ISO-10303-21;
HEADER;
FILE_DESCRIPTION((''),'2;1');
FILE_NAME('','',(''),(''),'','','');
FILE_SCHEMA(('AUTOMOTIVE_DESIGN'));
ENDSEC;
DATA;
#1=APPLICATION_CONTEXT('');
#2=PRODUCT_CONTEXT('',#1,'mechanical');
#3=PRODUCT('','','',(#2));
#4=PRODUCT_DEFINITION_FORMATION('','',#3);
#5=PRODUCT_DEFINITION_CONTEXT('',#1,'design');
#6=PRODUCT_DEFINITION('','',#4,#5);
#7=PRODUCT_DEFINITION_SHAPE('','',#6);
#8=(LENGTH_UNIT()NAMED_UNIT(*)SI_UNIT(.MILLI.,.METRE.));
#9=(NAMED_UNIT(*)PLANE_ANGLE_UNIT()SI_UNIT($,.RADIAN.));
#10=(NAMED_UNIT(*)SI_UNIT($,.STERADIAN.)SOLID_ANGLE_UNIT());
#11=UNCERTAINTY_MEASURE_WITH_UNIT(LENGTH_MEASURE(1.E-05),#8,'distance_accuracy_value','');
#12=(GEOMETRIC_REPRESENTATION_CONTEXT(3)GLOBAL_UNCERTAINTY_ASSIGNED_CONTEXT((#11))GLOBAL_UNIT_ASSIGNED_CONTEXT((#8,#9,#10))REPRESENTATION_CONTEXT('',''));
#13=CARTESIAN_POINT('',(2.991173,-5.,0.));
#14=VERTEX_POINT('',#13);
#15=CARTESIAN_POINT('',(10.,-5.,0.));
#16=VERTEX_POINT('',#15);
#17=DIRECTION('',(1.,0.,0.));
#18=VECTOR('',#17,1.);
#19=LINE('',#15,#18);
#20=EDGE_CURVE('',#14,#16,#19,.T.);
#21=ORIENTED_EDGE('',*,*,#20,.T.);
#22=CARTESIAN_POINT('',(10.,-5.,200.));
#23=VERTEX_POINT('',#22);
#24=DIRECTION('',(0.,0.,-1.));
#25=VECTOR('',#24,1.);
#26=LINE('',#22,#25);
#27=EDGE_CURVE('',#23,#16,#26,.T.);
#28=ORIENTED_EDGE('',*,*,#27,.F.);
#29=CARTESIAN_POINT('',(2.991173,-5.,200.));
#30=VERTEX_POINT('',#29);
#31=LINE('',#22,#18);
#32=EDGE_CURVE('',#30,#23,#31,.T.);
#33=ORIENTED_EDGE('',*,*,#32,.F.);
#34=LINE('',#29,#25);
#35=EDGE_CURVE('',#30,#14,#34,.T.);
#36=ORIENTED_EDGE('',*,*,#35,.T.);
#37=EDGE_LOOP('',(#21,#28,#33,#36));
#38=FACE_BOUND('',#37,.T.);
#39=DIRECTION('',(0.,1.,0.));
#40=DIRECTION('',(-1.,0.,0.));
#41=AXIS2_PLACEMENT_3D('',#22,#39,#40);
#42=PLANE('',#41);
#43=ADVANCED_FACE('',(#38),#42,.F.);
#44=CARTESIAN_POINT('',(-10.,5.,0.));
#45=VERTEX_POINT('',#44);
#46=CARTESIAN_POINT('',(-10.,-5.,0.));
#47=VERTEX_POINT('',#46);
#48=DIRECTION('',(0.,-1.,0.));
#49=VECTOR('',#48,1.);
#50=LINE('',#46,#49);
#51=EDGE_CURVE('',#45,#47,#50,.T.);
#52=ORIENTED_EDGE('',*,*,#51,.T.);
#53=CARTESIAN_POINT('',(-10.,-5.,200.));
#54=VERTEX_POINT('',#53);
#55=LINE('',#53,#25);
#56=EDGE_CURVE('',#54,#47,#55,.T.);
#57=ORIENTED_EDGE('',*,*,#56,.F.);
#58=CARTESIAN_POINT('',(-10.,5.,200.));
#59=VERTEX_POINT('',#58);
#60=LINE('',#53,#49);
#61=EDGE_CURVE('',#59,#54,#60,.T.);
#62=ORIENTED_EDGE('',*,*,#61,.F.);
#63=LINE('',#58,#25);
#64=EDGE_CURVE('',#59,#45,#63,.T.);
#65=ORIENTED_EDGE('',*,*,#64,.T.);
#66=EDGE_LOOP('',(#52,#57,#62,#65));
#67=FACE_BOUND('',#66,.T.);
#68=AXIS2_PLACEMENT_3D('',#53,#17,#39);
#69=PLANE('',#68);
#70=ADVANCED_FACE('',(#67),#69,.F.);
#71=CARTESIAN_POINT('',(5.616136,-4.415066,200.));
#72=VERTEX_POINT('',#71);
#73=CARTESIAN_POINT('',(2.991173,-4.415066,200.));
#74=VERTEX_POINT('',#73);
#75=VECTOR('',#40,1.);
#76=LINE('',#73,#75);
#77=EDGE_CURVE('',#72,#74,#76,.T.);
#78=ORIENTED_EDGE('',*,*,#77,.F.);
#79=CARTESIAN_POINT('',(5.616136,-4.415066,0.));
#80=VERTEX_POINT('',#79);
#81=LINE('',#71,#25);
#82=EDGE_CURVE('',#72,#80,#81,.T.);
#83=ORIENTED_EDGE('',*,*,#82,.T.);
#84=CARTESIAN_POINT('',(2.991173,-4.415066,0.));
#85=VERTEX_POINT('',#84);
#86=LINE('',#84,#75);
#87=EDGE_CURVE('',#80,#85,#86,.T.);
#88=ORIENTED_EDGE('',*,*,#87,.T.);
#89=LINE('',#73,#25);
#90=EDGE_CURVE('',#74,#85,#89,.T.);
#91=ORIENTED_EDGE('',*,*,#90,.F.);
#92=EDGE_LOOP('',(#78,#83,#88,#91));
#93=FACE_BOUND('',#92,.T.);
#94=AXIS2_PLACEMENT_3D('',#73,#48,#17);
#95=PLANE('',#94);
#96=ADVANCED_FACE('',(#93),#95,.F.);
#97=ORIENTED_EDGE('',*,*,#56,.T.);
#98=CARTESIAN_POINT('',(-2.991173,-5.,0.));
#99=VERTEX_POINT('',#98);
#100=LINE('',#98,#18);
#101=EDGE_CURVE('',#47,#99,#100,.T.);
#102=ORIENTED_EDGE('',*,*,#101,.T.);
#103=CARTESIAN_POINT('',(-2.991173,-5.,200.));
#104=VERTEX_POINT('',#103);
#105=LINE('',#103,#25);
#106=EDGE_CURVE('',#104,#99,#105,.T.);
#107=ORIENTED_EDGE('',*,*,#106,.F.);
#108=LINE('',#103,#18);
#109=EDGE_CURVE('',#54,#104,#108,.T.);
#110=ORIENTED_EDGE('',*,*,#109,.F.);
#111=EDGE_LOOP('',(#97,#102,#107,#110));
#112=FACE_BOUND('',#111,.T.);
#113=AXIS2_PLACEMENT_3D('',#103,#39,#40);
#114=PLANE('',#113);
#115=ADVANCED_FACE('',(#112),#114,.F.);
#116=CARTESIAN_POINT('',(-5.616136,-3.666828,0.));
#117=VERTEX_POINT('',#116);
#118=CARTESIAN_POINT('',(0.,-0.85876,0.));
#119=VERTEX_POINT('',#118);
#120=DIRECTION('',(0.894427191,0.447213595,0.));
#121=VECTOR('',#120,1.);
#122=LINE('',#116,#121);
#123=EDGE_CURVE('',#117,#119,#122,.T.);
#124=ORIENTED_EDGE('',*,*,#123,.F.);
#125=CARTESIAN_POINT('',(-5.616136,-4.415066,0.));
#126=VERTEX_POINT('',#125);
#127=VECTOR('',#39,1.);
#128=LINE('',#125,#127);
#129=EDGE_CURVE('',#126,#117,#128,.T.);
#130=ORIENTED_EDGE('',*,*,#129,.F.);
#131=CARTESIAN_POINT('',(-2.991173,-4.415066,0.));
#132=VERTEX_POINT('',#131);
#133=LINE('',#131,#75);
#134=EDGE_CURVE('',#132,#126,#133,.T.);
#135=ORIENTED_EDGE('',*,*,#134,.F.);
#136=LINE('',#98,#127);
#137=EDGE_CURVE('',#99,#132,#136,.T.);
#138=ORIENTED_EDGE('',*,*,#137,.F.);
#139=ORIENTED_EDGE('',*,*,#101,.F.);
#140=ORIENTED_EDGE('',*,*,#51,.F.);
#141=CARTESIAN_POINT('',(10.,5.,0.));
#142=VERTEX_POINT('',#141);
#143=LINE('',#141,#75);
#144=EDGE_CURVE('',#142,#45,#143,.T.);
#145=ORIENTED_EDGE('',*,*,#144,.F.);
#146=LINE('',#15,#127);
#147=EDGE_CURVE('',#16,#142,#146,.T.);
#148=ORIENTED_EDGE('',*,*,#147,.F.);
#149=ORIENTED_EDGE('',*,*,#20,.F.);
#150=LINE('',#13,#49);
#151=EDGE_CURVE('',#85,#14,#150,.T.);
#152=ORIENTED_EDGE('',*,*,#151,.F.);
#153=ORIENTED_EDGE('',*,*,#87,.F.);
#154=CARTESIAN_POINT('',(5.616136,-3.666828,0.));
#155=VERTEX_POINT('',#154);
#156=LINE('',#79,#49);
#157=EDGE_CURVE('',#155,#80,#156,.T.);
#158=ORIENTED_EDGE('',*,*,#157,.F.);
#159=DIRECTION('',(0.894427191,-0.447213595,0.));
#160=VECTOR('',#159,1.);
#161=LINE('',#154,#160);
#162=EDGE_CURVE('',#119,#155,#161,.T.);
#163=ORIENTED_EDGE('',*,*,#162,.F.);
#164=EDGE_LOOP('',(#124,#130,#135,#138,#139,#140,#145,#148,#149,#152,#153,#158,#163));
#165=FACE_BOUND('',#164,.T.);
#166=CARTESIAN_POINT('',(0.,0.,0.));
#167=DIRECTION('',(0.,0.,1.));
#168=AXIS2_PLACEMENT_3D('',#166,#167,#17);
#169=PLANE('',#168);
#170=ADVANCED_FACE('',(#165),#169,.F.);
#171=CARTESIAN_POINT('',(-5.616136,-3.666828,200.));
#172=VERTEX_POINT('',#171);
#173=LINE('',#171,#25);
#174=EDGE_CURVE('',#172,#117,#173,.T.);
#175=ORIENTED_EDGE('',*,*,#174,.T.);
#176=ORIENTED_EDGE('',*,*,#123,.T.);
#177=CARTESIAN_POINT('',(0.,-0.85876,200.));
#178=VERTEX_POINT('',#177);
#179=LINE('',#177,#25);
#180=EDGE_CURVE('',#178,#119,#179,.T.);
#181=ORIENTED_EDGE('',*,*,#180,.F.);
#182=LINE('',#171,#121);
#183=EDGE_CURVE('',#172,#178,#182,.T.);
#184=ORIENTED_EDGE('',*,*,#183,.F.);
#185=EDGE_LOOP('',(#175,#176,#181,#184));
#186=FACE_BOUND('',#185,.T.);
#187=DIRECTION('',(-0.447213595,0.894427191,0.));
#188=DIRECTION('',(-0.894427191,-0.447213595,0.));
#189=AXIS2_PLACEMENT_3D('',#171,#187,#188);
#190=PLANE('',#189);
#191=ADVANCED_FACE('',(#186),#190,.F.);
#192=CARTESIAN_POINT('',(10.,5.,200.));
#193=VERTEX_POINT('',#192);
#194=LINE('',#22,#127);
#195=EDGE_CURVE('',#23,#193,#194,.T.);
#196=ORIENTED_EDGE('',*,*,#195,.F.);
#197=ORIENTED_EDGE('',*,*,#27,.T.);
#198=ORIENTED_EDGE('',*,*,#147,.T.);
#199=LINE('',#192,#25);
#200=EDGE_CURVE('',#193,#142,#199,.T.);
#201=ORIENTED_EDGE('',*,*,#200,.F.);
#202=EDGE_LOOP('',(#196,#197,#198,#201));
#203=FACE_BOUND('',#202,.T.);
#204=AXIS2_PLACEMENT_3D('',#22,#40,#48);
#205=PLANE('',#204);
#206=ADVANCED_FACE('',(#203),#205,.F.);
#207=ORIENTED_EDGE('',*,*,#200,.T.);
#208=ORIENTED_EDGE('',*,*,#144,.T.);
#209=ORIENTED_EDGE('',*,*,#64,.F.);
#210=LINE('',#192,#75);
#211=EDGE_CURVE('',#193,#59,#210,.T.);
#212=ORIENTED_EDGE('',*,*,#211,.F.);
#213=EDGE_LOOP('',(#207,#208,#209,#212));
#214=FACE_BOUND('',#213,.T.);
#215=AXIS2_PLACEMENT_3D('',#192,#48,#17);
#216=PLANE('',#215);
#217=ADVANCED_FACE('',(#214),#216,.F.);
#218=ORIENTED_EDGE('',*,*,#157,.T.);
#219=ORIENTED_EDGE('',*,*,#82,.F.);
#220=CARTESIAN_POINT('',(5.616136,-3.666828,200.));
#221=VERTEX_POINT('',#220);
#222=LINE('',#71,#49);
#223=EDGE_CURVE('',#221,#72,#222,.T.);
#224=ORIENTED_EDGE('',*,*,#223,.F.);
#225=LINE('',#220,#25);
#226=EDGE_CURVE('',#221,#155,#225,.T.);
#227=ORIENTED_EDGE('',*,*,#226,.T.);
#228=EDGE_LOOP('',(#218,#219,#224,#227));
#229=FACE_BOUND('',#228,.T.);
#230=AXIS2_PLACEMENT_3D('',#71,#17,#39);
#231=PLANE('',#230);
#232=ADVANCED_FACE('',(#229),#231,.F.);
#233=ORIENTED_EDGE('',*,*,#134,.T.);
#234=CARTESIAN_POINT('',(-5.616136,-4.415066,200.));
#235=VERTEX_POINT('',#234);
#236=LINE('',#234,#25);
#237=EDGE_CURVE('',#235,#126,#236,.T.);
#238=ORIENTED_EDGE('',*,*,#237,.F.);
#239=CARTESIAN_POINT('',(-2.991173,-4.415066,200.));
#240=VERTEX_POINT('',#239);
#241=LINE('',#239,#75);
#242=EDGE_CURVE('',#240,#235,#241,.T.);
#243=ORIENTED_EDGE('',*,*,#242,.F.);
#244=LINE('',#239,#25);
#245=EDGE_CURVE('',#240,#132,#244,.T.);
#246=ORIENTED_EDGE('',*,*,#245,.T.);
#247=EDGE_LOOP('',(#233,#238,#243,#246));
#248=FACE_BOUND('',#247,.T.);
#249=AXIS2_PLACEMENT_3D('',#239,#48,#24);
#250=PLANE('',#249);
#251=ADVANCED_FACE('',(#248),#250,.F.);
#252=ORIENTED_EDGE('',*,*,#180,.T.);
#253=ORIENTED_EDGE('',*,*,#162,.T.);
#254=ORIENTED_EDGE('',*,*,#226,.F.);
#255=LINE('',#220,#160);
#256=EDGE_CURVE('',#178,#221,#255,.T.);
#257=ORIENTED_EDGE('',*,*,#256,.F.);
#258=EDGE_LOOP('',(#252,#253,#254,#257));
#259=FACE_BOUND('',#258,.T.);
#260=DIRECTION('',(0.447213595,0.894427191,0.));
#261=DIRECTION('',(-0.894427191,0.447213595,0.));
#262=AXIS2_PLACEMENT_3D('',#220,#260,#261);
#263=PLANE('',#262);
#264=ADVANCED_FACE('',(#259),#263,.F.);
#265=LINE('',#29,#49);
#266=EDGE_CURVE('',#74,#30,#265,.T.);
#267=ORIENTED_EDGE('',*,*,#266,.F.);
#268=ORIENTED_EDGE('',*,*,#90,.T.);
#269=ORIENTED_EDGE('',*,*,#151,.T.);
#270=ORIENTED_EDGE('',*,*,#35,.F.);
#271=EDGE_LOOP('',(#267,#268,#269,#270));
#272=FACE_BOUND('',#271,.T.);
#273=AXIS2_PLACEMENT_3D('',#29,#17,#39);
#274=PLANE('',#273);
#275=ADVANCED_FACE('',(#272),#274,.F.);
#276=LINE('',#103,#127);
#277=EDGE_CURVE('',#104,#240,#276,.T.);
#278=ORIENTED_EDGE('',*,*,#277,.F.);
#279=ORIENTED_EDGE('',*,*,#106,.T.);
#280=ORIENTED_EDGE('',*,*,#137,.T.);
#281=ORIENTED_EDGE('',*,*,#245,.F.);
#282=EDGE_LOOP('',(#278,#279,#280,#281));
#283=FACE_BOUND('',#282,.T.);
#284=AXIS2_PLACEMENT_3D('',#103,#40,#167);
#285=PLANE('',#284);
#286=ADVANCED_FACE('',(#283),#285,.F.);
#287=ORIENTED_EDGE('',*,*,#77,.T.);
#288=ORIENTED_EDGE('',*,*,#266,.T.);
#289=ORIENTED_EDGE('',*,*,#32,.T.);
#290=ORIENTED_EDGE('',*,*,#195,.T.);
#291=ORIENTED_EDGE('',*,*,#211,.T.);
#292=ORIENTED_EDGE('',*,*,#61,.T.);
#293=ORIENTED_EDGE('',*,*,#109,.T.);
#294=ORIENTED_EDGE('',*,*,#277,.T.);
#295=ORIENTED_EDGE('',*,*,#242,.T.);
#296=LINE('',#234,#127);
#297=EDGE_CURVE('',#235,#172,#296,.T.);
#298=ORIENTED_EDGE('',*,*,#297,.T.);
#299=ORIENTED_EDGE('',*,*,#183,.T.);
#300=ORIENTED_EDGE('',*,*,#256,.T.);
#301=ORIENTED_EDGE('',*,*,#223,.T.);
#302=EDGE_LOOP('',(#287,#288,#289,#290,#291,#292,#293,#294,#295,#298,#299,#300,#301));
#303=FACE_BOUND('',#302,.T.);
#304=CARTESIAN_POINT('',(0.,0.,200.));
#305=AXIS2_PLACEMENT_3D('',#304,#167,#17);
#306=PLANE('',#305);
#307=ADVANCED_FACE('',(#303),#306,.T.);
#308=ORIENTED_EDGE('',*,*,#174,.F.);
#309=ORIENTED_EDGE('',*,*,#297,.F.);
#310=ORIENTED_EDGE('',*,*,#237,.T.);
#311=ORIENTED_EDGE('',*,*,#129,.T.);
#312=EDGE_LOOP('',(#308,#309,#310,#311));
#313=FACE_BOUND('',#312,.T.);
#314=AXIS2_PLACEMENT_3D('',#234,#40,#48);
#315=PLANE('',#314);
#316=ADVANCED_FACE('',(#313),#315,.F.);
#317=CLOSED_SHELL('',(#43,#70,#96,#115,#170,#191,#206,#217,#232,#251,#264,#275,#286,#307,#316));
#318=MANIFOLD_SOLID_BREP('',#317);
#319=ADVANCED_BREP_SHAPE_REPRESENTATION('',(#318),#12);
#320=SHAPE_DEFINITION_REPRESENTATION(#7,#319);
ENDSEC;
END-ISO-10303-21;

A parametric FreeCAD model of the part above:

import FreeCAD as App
import Part
import Sketcher

V = App.Vector


def add_polygon(sketch, points):
    """Adds a closed chain of lines whose ends are joined by coincident constraints."""
    first, n = sketch.GeometryCount, len(points)
    for a, b in zip(points, points[1:] + points[:1]):
        sketch.addGeometry(Part.LineSegment(App.Vector(*a, 0), App.Vector(*b, 0)), False)
    for i in range(n):
        sketch.addConstraint(Sketcher.Constraint("Coincident", first + i, 2, first + (i + 1) % n, 1))

doc = App.newDocument("Part")
body = doc.addObject("PartDesign::Body", "Body")

# Sketch on XY plane
sketch1 = body.newObject("Sketcher::SketchObject", "Sketch")
sketch1.AttachmentSupport = (doc.getObject("XY_Plane"), [""])
sketch1.MapMode = "FlatFace"
add_polygon(sketch1, [(3, -5), (10, -5), (10, 5), (-10, 5), (-10, -5), (-3, -5), (-3, -4.4), (-5.6, -4.4), (-5.6, -3.7), (0, -0.9), (5.6, -3.7), (5.6, -4.4), (3, -4.4)])  # lines 0-12
sketch1.addConstraint([
    Sketcher.Constraint("Horizontal", 0),
    Sketcher.Constraint("Vertical", 1),
    Sketcher.Constraint("Horizontal", 2),
    Sketcher.Constraint("Vertical", 3),
    Sketcher.Constraint("Horizontal", 4),
    Sketcher.Constraint("Vertical", 5),
    Sketcher.Constraint("Horizontal", 6),
    Sketcher.Constraint("Vertical", 7),
    Sketcher.Constraint("Vertical", 10),
    Sketcher.Constraint("Horizontal", 11),
    Sketcher.Constraint("Vertical", 12),
    Sketcher.Constraint("Symmetric", 0, 2, 2, 2, -1, 1),
    Sketcher.Constraint("Symmetric", 7, 2, 9, 2, -2),
    Sketcher.Constraint("Symmetric", 5, 2, 11, 2, -2),
    Sketcher.Constraint("PointOnObject", 8, 2, -2),
    Sketcher.Constraint("Horizontal", 0, 2, 3, 2),
    Sketcher.Constraint("DistanceX", 2, 2, 2, 1, 20.0),
    Sketcher.Constraint("DistanceY", 1, 1, 1, 2, 10.0),
    Sketcher.Constraint("DistanceY", 7, 1, 7, 2, 0.748238),
    Sketcher.Constraint("Distance", 8, 6.27903),
    Sketcher.Constraint("DistanceX", 0, 1, 0, 2, 7.008827),
    Sketcher.Constraint("DistanceX", 6, 2, 6, 1, 2.624962),
    Sketcher.Constraint("DistanceY", 5, 1, 5, 2, 0.584934),
])
pad1 = body.newObject("PartDesign::Pad", "Pad")
pad1.Profile = sketch1
pad1.Length = 200

doc.recompute()
